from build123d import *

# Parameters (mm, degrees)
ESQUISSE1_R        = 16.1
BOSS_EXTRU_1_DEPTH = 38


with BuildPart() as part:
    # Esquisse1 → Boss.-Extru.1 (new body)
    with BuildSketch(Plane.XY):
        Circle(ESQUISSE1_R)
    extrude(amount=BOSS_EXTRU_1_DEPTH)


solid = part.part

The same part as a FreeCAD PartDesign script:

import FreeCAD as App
import Part
import Sketcher
from FreeCAD import Vector

doc = App.newDocument("Part")
body = doc.addObject("PartDesign::Body", "Body")

sketch1 = body.newObject("Sketcher::SketchObject", "Sketch")
sketch1.AttachmentSupport = (doc.getObject("XY_Plane"), [""])
sketch1.MapMode = "FlatFace"
sketch1.addGeometry(Part.Circle(Vector(0, 0, 0), Vector(0, 0, 1), 16), False)
sketch1.addConstraint([
    Sketcher.Constraint("Coincident", 0, 3, -1, 1),
    Sketcher.Constraint("Diameter", 0, 32.2),
])
pad1 = body.newObject("PartDesign::Pad", "Pad")
pad1.Profile = sketch1
pad1.Length = 38

doc.recompute()
